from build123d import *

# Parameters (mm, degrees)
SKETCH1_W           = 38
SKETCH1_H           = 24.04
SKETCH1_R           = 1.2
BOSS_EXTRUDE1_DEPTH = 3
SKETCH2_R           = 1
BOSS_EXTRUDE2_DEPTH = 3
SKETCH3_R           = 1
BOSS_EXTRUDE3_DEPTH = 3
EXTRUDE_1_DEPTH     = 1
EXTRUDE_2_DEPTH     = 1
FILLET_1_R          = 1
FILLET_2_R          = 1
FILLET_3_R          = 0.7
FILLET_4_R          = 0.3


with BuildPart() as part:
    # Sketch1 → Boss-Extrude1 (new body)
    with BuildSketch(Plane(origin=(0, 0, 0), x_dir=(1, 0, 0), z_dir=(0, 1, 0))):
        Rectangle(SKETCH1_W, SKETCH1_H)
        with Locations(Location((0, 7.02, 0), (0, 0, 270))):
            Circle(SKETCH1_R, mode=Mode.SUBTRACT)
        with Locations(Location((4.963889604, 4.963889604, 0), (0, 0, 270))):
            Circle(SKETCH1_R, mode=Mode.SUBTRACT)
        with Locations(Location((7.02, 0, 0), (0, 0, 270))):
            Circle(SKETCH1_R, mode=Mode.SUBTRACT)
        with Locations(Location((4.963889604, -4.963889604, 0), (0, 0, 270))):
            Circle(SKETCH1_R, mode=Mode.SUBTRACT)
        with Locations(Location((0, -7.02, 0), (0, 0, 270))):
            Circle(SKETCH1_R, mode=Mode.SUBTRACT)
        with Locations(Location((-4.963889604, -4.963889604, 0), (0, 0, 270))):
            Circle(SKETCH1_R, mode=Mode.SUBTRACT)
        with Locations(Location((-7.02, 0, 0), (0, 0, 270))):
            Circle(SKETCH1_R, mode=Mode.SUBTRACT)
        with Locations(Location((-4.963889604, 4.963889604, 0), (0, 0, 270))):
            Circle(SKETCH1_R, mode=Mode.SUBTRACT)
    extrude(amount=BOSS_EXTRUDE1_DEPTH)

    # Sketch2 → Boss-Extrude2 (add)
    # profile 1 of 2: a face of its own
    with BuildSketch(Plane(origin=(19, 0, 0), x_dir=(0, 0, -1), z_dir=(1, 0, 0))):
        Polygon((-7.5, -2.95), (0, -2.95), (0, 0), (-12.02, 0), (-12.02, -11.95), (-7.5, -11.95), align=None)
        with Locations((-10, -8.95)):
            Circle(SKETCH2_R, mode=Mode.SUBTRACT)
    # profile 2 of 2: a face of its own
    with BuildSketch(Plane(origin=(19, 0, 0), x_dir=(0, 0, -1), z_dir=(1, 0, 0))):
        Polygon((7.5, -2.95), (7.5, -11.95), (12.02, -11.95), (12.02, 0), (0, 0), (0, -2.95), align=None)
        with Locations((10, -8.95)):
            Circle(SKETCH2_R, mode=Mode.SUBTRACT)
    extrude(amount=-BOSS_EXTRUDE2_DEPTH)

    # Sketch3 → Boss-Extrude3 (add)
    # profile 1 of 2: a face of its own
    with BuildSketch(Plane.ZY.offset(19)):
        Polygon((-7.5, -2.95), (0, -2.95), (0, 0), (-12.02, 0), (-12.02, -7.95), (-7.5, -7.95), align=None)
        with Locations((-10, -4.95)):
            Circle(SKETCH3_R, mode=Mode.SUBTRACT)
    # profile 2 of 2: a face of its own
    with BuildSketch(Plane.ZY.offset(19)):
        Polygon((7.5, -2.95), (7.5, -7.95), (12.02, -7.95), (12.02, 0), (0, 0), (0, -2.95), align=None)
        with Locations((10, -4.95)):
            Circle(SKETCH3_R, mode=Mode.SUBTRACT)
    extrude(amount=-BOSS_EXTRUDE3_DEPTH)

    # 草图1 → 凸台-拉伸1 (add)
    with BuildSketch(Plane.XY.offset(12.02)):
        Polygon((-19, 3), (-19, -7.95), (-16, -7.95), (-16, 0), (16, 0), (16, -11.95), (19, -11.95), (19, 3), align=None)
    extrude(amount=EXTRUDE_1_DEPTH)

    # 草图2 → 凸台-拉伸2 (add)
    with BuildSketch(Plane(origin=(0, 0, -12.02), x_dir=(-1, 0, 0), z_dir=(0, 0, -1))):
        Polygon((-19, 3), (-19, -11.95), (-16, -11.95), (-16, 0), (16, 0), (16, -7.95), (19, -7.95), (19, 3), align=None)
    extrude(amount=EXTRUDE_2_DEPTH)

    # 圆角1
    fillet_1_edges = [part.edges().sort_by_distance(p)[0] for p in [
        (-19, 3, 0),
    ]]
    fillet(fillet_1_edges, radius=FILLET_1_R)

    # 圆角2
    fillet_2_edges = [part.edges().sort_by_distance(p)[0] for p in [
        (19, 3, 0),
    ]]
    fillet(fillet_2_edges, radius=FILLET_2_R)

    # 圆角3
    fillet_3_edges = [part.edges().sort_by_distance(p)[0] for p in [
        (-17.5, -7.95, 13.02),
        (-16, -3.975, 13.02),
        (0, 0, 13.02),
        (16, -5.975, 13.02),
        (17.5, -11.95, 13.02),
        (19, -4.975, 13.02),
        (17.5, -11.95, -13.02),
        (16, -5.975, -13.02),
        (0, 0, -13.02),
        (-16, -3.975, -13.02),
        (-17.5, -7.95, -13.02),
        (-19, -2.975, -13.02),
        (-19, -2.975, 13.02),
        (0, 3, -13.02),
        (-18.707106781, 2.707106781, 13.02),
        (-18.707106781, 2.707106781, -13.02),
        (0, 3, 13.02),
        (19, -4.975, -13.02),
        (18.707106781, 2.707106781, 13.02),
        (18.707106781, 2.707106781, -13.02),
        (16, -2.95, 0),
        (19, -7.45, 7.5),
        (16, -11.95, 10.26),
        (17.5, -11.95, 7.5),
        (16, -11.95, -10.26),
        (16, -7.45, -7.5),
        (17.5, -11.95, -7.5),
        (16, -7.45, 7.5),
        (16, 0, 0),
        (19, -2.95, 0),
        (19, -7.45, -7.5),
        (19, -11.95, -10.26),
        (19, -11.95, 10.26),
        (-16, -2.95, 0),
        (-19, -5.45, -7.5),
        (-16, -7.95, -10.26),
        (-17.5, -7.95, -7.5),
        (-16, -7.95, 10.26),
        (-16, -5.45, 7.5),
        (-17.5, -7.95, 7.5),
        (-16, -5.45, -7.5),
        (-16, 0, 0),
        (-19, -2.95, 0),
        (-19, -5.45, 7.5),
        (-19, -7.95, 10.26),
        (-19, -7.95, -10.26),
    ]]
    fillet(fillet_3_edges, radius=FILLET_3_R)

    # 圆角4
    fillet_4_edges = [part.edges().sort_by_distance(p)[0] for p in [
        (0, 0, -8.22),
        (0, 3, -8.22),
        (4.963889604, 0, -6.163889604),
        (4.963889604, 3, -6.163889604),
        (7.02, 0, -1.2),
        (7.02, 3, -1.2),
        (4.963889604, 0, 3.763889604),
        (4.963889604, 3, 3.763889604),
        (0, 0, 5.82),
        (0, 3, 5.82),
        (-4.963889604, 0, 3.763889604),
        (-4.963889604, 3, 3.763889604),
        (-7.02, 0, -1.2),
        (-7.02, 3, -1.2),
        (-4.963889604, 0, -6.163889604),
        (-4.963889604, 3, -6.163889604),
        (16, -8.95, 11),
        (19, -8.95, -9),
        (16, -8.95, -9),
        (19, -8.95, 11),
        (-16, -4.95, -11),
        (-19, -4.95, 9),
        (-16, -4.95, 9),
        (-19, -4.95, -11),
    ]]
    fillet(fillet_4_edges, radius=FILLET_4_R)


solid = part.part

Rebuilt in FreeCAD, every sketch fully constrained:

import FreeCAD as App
import Part
import Sketcher

V = App.Vector
Q = App.Units.Quantity


def edges_at(feature, points):
    """Names of the edges that pass closest to the given points."""
    edges = feature.Shape.Edges
    near = lambda p: min(range(len(edges)), key=lambda i: edges[i].distToShape(Part.Vertex(*p))[0])
    return sorted({f"Edge{near(p) + 1}" for p in points})

doc = App.newDocument("Part")
body = doc.addObject("PartDesign::Body", "Body")

# Sketch on XZ plane
sketch1 = body.newObject("Sketcher::SketchObject", "Sketch")
sketch1.AttachmentSupport = (doc.getObject("XZ_Plane"), [""])
sketch1.MapMode = "FlatFace"
sketch1.addGeometry([
    Part.LineSegment(V(-19, -12, 0), V(-19, 12, 0)),  # 0
    Part.LineSegment(V(-19, 12, 0), V(19, 12, 0)),  # 1
    Part.LineSegment(V(19, 12, 0), V(19, -12, 0)),  # 2
    Part.LineSegment(V(19, -12, 0), V(-19, -12, 0)),  # 3
    Part.Circle(V(-5, 5, 0), V(0, 0, 1), 1.2),  # 4
    Part.Circle(V(0, 7, 0), V(0, 0, 1), 1.2),  # 5
    Part.Circle(V(5, 5, 0), V(0, 0, 1), 1.2),  # 6
    Part.Circle(V(-7, 0, 0), V(0, 0, 1), 1.2),  # 7
    Part.Circle(V(-5, -5, 0), V(0, 0, 1), 1.2),  # 8
    Part.Circle(V(7, 0, 0), V(0, 0, 1), 1.2),  # 9
    Part.Circle(V(0, -7, 0), V(0, 0, 1), 1.2),  # 10
    Part.Circle(V(5, -5, 0), V(0, 0, 1), 1.2),  # 11
], False)
sketch1.addConstraint([
    Sketcher.Constraint("Coincident", 0, 2, 1, 1),
    Sketcher.Constraint("Coincident", 1, 2, 2, 1),
    Sketcher.Constraint("Coincident", 2, 2, 3, 1),
    Sketcher.Constraint("Coincident", 3, 2, 0, 1),
    Sketcher.Constraint("Vertical", 0),
    Sketcher.Constraint("Horizontal", 1),
    Sketcher.Constraint("Vertical", 2),
    Sketcher.Constraint("Horizontal", 3),
    Sketcher.Constraint("Equal", 4, 5),
    Sketcher.Constraint("Equal", 5, 6),
    Sketcher.Constraint("Equal", 6, 7),
    Sketcher.Constraint("Equal", 7, 8),
    Sketcher.Constraint("Equal", 8, 9),
    Sketcher.Constraint("Equal", 9, 10),
    Sketcher.Constraint("Equal", 10, 11),
    Sketcher.Constraint("Symmetric", 6, 3, 8, 3, -1, 1),
    Sketcher.Constraint("Symmetric", 7, 3, 9, 3, -1, 1),
    Sketcher.Constraint("Symmetric", 5, 3, 10, 3, -1, 1),
    Sketcher.Constraint("Symmetric", 4, 3, 11, 3, -1, 1),
    Sketcher.Constraint("Symmetric", 0, 2, 2, 2, -1, 1),
    Sketcher.Constraint("Symmetric", 4, 3, 6, 3, -2),
    Sketcher.Constraint("PointOnObject", 5, 3, -2),
    Sketcher.Constraint("PointOnObject", 7, 3, -1),
    Sketcher.Constraint("Diameter", 4, Q("2.4 mm")),
    Sketcher.Constraint("DistanceX", 1, 1, 1, 2, Q("38 mm")),
    Sketcher.Constraint("DistanceY", 5, 3, 0, 2, Q("5 mm")),
    Sketcher.Constraint("DistanceY", 0, 1, 0, 2, Q("24.04 mm")),
    Sketcher.Constraint("DistanceX", 7, 3, -1, 1, Q("7.02 mm")),
    Sketcher.Constraint("DistanceX", 4, 3, -1, 1, Q("4.96389 mm")),
    Sketcher.Constraint("DistanceY", -1, 1, 4, 3, Q("4.96389 mm")),
])
pad1 = body.newObject("PartDesign::Pad", "Pad")
pad1.Profile = sketch1
pad1.Length = 3
pad1.Reversed = True

# Sketch on YZ plane
sketch2 = body.newObject("Sketcher::SketchObject", "Sketch001")
sketch2.AttachmentSupport = (doc.getObject("YZ_Plane"), [""])
sketch2.MapMode = "FlatFace"
sketch2.AttachmentOffset = App.Placement(V(0, 0, 19), App.Rotation())
sketch2.addGeometry([
    Part.LineSegment(V(-3, 7.5, 0), V(-3, -7.5, 0)),  # 0
    Part.LineSegment(V(-3, -7.5, 0), V(-11.9, -7.5, 0)),  # 1
    Part.LineSegment(V(-11.9, -7.5, 0), V(-11.9, -12, 0)),  # 2
    Part.LineSegment(V(-11.9, -12, 0), V(0, -12, 0)),  # 3
    Part.LineSegment(V(0, -12, 0), V(0, 12, 0)),  # 4
    Part.LineSegment(V(0, 12, 0), V(-11.9, 12, 0)),  # 5
    Part.LineSegment(V(-11.9, 12, 0), V(-11.9, 7.5, 0)),  # 6
    Part.LineSegment(V(-11.9, 7.5, 0), V(-3, 7.5, 0)),  # 7
    Part.Circle(V(-8.9, 10, 0), V(0, 0, 1), 1),  # 8
    Part.Circle(V(-8.9, -10, 0), V(0, 0, 1), 1),  # 9
], False)
sketch2.addConstraint([
    Sketcher.Constraint("Coincident", 0, 2, 1, 1),
    Sketcher.Constraint("Coincident", 1, 2, 2, 1),
    Sketcher.Constraint("Coincident", 2, 2, 3, 1),
    Sketcher.Constraint("Coincident", 3, 2, 4, 1),
    Sketcher.Constraint("Coincident", 4, 2, 5, 1),
    Sketcher.Constraint("Coincident", 5, 2, 6, 1),
    Sketcher.Constraint("Coincident", 6, 2, 7, 1),
    Sketcher.Constraint("Coincident", 7, 2, 0, 1),
    Sketcher.Constraint("Vertical", 0),
    Sketcher.Constraint("Horizontal", 1),
    Sketcher.Constraint("Vertical", 2),
    Sketcher.Constraint("Horizontal", 3),
    Sketcher.Constraint("Vertical", 4),
    Sketcher.Constraint("Horizontal", 5),
    Sketcher.Constraint("Vertical", 6),
    Sketcher.Constraint("Horizontal", 7),
    Sketcher.Constraint("Equal", 8, 9),
    Sketcher.Constraint("Symmetric", 3, 2, 4, 2, -1, 1),
    Sketcher.Constraint("Symmetric", 8, 3, 9, 3, -1),
    Sketcher.Constraint("Symmetric", 1, 2, 6, 2, -1),
    Sketcher.Constraint("Diameter", 8, Q("2 mm")),
    Sketcher.Constraint("DistanceX", 1, 2, 1, 1, Q("9 mm")),
    Sketcher.Constraint("DistanceY", 0, 2, 0, 1, Q("15 mm")),
    Sketcher.Constraint("DistanceY", -1, 1, 8, 3, Q("10 mm")),
    Sketcher.Constraint("DistanceX", 9, 3, 0, 2, Q("6 mm")),
    Sketcher.Constraint("DistanceX", 3, 1, 3, 2, Q("11.95 mm")),
    Sketcher.Constraint("DistanceY", 2, 2, 2, 1, Q("4.52 mm")),
])
pad2 = body.newObject("PartDesign::Pad", "Pad001")
pad2.Profile = sketch2
pad2.Length = 3
pad2.Reversed = True

# Sketch on YZ plane
sketch3 = body.newObject("Sketcher::SketchObject", "Sketch002")
sketch3.AttachmentSupport = (doc.getObject("YZ_Plane"), [""])
sketch3.MapMode = "FlatFace"
sketch3.AttachmentOffset = App.Placement(V(0, 0, -19), App.Rotation())
sketch3.addGeometry([
    Part.LineSegment(V(-3, -7.5, 0), V(-3, 7.5, 0)),  # 0
    Part.LineSegment(V(-3, 7.5, 0), V(-8, 7.5, 0)),  # 1
    Part.LineSegment(V(-8, 7.5, 0), V(-8, 12, 0)),  # 2
    Part.LineSegment(V(-8, 12, 0), V(0, 12, 0)),  # 3
    Part.LineSegment(V(0, 12, 0), V(0, -12, 0)),  # 4
    Part.LineSegment(V(0, -12, 0), V(-8, -12, 0)),  # 5
    Part.LineSegment(V(-8, -12, 0), V(-8, -7.5, 0)),  # 6
    Part.LineSegment(V(-8, -7.5, 0), V(-3, -7.5, 0)),  # 7
    Part.Circle(V(-5, -10, 0), V(0, 0, 1), 1),  # 8
    Part.Circle(V(-5, 10, 0), V(0, 0, 1), 1),  # 9
], False)
sketch3.addConstraint([
    Sketcher.Constraint("Coincident", 0, 2, 1, 1),
    Sketcher.Constraint("Coincident", 1, 2, 2, 1),
    Sketcher.Constraint("Coincident", 2, 2, 3, 1),
    Sketcher.Constraint("Coincident", 3, 2, 4, 1),
    Sketcher.Constraint("Coincident", 4, 2, 5, 1),
    Sketcher.Constraint("Coincident", 5, 2, 6, 1),
    Sketcher.Constraint("Coincident", 6, 2, 7, 1),
    Sketcher.Constraint("Coincident", 7, 2, 0, 1),
    Sketcher.Constraint("Vertical", 0),
    Sketcher.Constraint("Horizontal", 1),
    Sketcher.Constraint("Vertical", 2),
    Sketcher.Constraint("Horizontal", 3),
    Sketcher.Constraint("Vertical", 4),
    Sketcher.Constraint("Horizontal", 5),
    Sketcher.Constraint("Vertical", 6),
    Sketcher.Constraint("Horizontal", 7),
    Sketcher.Constraint("Equal", 8, 9),
    Sketcher.Constraint("Symmetric", 3, 2, 4, 2, -1, 1),
    Sketcher.Constraint("Symmetric", 8, 3, 9, 3, -1),
    Sketcher.Constraint("Symmetric", 1, 2, 6, 2, -1),
    Sketcher.Constraint("Diameter", 8, Q("2 mm")),
    Sketcher.Constraint("DistanceX", 1, 2, 1, 1, Q("5 mm")),
    Sketcher.Constraint("DistanceY", 0, 1, 0, 2, Q("15 mm")),
    Sketcher.Constraint("DistanceY", 8, 3, -1, 1, Q("10 mm")),
    Sketcher.Constraint("DistanceX", 9, 3, 0, 2, Q("2 mm")),
    Sketcher.Constraint("DistanceX", 3, 1, 3, 2, Q("7.95 mm")),
    Sketcher.Constraint("DistanceY", 2, 1, 2, 2, Q("4.52 mm")),
])
pad3 = body.newObject("PartDesign::Pad", "Pad002")
pad3.Profile = sketch3
pad3.Length = 3

# Sketch on XY plane
sketch4 = body.newObject("Sketcher::SketchObject", "Sketch003")
sketch4.AttachmentSupport = (doc.getObject("XY_Plane"), [""])
sketch4.MapMode = "FlatFace"
sketch4.AttachmentOffset = App.Placement(V(0, 0, 12.02), App.Rotation())
sketch4.addGeometry([
    Part.LineSegment(V(-19, 3, 0), V(-19, -8, 0)),  # 0
    Part.LineSegment(V(-19, -8, 0), V(-16, -8, 0)),  # 1
    Part.LineSegment(V(-16, -8, 0), V(-16, 0, 0)),  # 2
    Part.LineSegment(V(-16, 0, 0), V(16, 0, 0)),  # 3
    Part.LineSegment(V(16, 0, 0), V(16, -11.9, 0)),  # 4
    Part.LineSegment(V(16, -11.9, 0), V(19, -11.9, 0)),  # 5
    Part.LineSegment(V(19, -11.9, 0), V(19, 3, 0)),  # 6
    Part.LineSegment(V(19, 3, 0), V(-19, 3, 0)),  # 7
], False)
sketch4.addConstraint([
    Sketcher.Constraint("Coincident", 0, 2, 1, 1),
    Sketcher.Constraint("Coincident", 1, 2, 2, 1),
    Sketcher.Constraint("Coincident", 2, 2, 3, 1),
    Sketcher.Constraint("Coincident", 3, 2, 4, 1),
    Sketcher.Constraint("Coincident", 4, 2, 5, 1),
    Sketcher.Constraint("Coincident", 5, 2, 6, 1),
    Sketcher.Constraint("Coincident", 6, 2, 7, 1),
    Sketcher.Constraint("Coincident", 7, 2, 0, 1),
    Sketcher.Constraint("Vertical", 0),
    Sketcher.Constraint("Horizontal", 1),
    Sketcher.Constraint("Vertical", 2),
    Sketcher.Constraint("Horizontal", 3),
    Sketcher.Constraint("Vertical", 4),
    Sketcher.Constraint("Horizontal", 5),
    Sketcher.Constraint("Vertical", 6),
    Sketcher.Constraint("Horizontal", 7),
    Sketcher.Constraint("Symmetric", 2, 2, 3, 2, -1, 1),
    Sketcher.Constraint("Equal", 1, 5),
    Sketcher.Constraint("DistanceX", 1, 1, 1, 2, Q("3 mm")),
    Sketcher.Constraint("DistanceX", 3, 1, 3, 2, Q("32 mm")),
    Sketcher.Constraint("DistanceY", -1, 1, 6, 2, Q("3 mm")),
    Sketcher.Constraint("DistanceY", 4, 2, 1, 2, Q("4 mm")),
    Sketcher.Constraint("DistanceY", 0, 2, 0, 1, Q("10.95 mm")),
])
pad4 = body.newObject("PartDesign::Pad", "Pad003")
pad4.Profile = sketch4
pad4.Length = 1

# Sketch on XY plane
sketch5 = body.newObject("Sketcher::SketchObject", "Sketch004")
sketch5.AttachmentSupport = (doc.getObject("XY_Plane"), [""])
sketch5.MapMode = "FlatFace"
sketch5.AttachmentOffset = App.Placement(V(0, 0, -12.02), App.Rotation())
sketch5.addGeometry([
    Part.LineSegment(V(19, 3, 0), V(19, -11.9, 0)),  # 0
    Part.LineSegment(V(19, -11.9, 0), V(16, -11.9, 0)),  # 1
    Part.LineSegment(V(16, -11.9, 0), V(16, 0, 0)),  # 2
    Part.LineSegment(V(16, 0, 0), V(-16, 0, 0)),  # 3
    Part.LineSegment(V(-16, 0, 0), V(-16, -8, 0)),  # 4
    Part.LineSegment(V(-16, -8, 0), V(-19, -8, 0)),  # 5
    Part.LineSegment(V(-19, -8, 0), V(-19, 3, 0)),  # 6
    Part.LineSegment(V(-19, 3, 0), V(19, 3, 0)),  # 7
], False)
sketch5.addConstraint([
    Sketcher.Constraint("Coincident", 0, 2, 1, 1),
    Sketcher.Constraint("Coincident", 1, 2, 2, 1),
    Sketcher.Constraint("Coincident", 2, 2, 3, 1),
    Sketcher.Constraint("Coincident", 3, 2, 4, 1),
    Sketcher.Constraint("Coincident", 4, 2, 5, 1),
    Sketcher.Constraint("Coincident", 5, 2, 6, 1),
    Sketcher.Constraint("Coincident", 6, 2, 7, 1),
    Sketcher.Constraint("Coincident", 7, 2, 0, 1),
    Sketcher.Constraint("Vertical", 0),
    Sketcher.Constraint("Horizontal", 1),
    Sketcher.Constraint("Vertical", 2),
    Sketcher.Constraint("Horizontal", 3),
    Sketcher.Constraint("Vertical", 4),
    Sketcher.Constraint("Horizontal", 5),
    Sketcher.Constraint("Vertical", 6),
    Sketcher.Constraint("Horizontal", 7),
    Sketcher.Constraint("Symmetric", 2, 2, 3, 2, -1, 1),
    Sketcher.Constraint("Equal", 1, 5),
    Sketcher.Constraint("DistanceX", 1, 2, 1, 1, Q("3 mm")),
    Sketcher.Constraint("DistanceX", 3, 2, 3, 1, Q("32 mm")),
    Sketcher.Constraint("DistanceY", -1, 1, 6, 2, Q("3 mm")),
    Sketcher.Constraint("DistanceY", 1, 2, 4, 2, Q("4 mm")),
    Sketcher.Constraint("DistanceY", 0, 2, 0, 1, Q("14.95 mm")),
])
pad5 = body.newObject("PartDesign::Pad", "Pad004")
pad5.Profile = sketch5
pad5.Length = 1
pad5.Reversed = True
doc.recompute()

fillet = body.newObject("PartDesign::Fillet", "Fillet")
fillet.Base = (pad5, edges_at(pad5, [(-19, 3, 0)]))
fillet.Radius = 1
doc.recompute()

fillet2 = body.newObject("PartDesign::Fillet", "Fillet001")
fillet2.Base = (fillet, edges_at(fillet, [(19, 3, 0)]))
fillet2.Radius = 1
doc.recompute()

fillet3 = body.newObject("PartDesign::Fillet", "Fillet002")
fillet3.Base = (fillet2, edges_at(fillet2, [
    (-17.5, -7.95, 13.02),
    (-16, -3.975, 13.02),
    (0, 0, 13.02),
    (16, -5.975, 13.02),
    (17.5, -11.95, 13.02),
    (19, -4.975, 13.02),
    (17.5, -11.95, -13.02),
    (16, -5.975, -13.02),
    (0, 0, -13.02),
    (-16, -3.975, -13.02),
    (-17.5, -7.95, -13.02),
    (-19, -2.975, -13.02),
    (-19, -2.975, 13.02),
    (0, 3, -13.02),
    (-18.707, 2.707, 13.02),
    (-18.707, 2.707, -13.02),
    (0, 3, 13.02),
    (19, -4.975, -13.02),
    (18.707, 2.707, 13.02),
    (18.707, 2.707, -13.02),
    (16, -2.95, 0),
    (19, -7.45, 7.5),
    (16, -11.95, 10.26),
    (17.5, -11.95, 7.5),
    (16, -11.95, -10.26),
    (16, -7.45, -7.5),
    (17.5, -11.95, -7.5),
    (16, -7.45, 7.5),
    (16, 0, 0),
    (19, -2.95, 0),
    (19, -7.45, -7.5),
    (19, -11.95, -10.26),
    (19, -11.95, 10.26),
    (-16, -2.95, 0),
    (-19, -5.45, -7.5),
    (-16, -7.95, -10.26),
    (-17.5, -7.95, -7.5),
    (-16, -7.95, 10.26),
    (-16, -5.45, 7.5),
    (-17.5, -7.95, 7.5),
    (-16, -5.45, -7.5),
    (-16, 0, 0),
    (-19, -2.95, 0),
    (-19, -5.45, 7.5),
    (-19, -7.95, 10.26),
    (-19, -7.95, -10.26),
]))
fillet3.Radius = 0.7
doc.recompute()

fillet4 = body.newObject("PartDesign::Fillet", "Fillet003")
fillet4.Base = (fillet3, edges_at(fillet3, [
    (0, 0, -8.22),
    (0, 3, -8.22),
    (4.964, 0, -6.164),
    (4.964, 3, -6.164),
    (7.02, 0, -1.2),
    (7.02, 3, -1.2),
    (4.964, 0, 3.764),
    (4.964, 3, 3.764),
    (0, 0, 5.82),
    (0, 3, 5.82),
    (-4.964, 0, 3.764),
    (-4.964, 3, 3.764),
    (-7.02, 0, -1.2),
    (-7.02, 3, -1.2),
    (-4.964, 0, -6.164),
    (-4.964, 3, -6.164),
    (16, -8.95, 11),
    (19, -8.95, -9),
    (16, -8.95, -9),
    (19, -8.95, 11),
    (-16, -4.95, -11),
    (-19, -4.95, 9),
    (-16, -4.95, 9),
    (-19, -4.95, -11),
]))
fillet4.Radius = 0.3

doc.recompute()
